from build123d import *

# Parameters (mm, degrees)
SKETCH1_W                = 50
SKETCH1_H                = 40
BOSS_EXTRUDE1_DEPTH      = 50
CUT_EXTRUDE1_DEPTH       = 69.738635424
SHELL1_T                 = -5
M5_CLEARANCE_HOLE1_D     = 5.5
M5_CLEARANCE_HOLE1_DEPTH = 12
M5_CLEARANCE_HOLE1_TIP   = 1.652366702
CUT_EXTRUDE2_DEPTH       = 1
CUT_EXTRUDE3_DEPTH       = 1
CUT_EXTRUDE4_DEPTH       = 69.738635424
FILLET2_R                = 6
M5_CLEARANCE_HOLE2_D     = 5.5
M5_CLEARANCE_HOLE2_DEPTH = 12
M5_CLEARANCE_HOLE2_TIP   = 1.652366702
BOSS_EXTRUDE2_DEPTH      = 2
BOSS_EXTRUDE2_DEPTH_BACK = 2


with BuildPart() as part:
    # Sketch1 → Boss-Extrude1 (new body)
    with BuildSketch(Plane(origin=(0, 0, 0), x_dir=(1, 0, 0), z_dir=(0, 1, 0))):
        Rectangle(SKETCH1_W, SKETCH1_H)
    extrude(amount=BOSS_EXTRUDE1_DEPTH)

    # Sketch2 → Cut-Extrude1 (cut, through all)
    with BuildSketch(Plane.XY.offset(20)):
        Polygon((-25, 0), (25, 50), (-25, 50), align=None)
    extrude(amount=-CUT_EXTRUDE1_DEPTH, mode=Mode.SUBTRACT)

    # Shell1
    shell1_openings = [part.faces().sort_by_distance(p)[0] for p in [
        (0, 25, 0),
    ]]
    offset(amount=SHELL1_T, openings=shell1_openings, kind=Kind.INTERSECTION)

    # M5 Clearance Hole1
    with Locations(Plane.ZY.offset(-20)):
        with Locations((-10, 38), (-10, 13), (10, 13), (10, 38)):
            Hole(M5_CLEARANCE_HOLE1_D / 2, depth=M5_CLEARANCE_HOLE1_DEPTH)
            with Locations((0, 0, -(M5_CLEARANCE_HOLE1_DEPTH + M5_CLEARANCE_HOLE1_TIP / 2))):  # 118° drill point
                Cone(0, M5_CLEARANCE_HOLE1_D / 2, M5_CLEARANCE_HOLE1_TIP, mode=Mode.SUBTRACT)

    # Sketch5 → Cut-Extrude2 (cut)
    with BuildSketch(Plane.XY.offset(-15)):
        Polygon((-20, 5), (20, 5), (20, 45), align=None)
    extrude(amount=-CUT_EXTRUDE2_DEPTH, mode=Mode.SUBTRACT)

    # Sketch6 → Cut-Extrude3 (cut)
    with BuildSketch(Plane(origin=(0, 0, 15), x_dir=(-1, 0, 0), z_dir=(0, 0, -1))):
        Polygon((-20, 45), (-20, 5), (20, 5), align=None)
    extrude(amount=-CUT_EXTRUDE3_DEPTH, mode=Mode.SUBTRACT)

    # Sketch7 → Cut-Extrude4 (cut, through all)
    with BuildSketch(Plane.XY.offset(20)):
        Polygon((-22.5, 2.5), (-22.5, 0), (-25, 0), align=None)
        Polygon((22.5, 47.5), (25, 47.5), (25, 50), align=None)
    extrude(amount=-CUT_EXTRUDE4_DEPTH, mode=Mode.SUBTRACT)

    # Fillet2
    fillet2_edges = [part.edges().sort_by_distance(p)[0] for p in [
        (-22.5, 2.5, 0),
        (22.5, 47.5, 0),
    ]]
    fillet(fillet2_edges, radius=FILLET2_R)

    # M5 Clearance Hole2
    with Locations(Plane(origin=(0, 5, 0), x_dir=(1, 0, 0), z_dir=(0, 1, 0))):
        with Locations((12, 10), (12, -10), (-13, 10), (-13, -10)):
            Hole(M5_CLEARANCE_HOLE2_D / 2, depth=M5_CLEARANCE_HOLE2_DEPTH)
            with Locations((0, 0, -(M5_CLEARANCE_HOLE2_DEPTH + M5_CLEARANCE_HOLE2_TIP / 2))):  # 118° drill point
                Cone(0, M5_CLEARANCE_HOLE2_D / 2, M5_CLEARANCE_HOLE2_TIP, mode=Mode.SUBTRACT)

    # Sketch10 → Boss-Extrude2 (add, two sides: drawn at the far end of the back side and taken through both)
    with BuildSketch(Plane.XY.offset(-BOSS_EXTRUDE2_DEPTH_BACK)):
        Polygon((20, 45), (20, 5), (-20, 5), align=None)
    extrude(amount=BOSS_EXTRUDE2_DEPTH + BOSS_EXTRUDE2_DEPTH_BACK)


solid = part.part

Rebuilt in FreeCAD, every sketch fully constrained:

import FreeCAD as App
import Part
import Sketcher
Q = App.Units.Quantity


def edges_at(feature, points):
    """Names of the edges that pass closest to the given points."""
    edges = feature.Shape.Edges
    near = lambda p: min(range(len(edges)), key=lambda i: edges[i].distToShape(Part.Vertex(*p))[0])
    return sorted({f"Edge{near(p) + 1}" for p in points})


def faces_at(feature, points):
    """Names of the faces that lie closest to the given points."""
    faces = feature.Shape.Faces
    near = lambda p: min(range(len(faces)), key=lambda i: faces[i].distToShape(Part.Vertex(*p))[0])
    return sorted({f"Face{near(p) + 1}" for p in points})


def add_polygon(sketch, points):
    """Adds a closed chain of lines whose ends are joined by coincident constraints."""
    first, n = sketch.GeometryCount, len(points)
    for a, b in zip(points, points[1:] + points[:1]):
        sketch.addGeometry(Part.LineSegment(App.Vector(*a, 0), App.Vector(*b, 0)), False)
    for i in range(n):
        sketch.addConstraint(Sketcher.Constraint("Coincident", first + i, 2, first + (i + 1) % n, 1))

doc = App.newDocument("Part")
params = doc.addObject("Spreadsheet::Sheet", "Params")
for row, (alias, value) in enumerate([
    ("sketch1_width", "50 mm"),
    ("sketch1_height", "40 mm"),
    ("pad1_length", "50 mm"),
    ("sketch2_width", "50 mm"),
    ("thickness_wall", "5 mm"),
    ("sketch3_diameter", "5.5 mm"),
    ("hole_diameter", "5.5 mm"),
    ("hole_depth", "12 mm"),
    ("sketch4_width", "40 mm"),
    ("pocket2_length", "1 mm"),
    ("sketch5_width", "40 mm"),
    ("pocket3_length", "1 mm"),
    ("sketch6_width", "2.5 mm"),
    ("fillet_radius", "6 mm"),
    ("sketch7_diameter", "5.5 mm"),
    ("hole2_diameter", "5.5 mm"),
    ("hole2_depth", "12 mm"),
    ("sketch8_width", "40 mm"),
    ("pad2_length", "2 mm"),
    ("pad2_length2", "2 mm"),
], start=1):
    params.set(f"A{row}", alias)
    params.set(f"B{row}", "=" + value)
    params.setAlias(f"B{row}", alias)

body = doc.addObject("PartDesign::Body", "Body")

# Sketch on XZ plane
sketch1 = doc.addObject("Sketcher::SketchObject", "Sketch")
body.addObject(sketch1)
sketch1.AttachmentSupport = (doc.XZ_Plane, [""])
sketch1.MapMode = "FlatFace"
add_polygon(sketch1, [(-25, -20), (-25, 20), (25, 20), (25, -20)])  # lines 0-3
sketch1.addConstraint([
    Sketcher.Constraint("Vertical", 0),
    Sketcher.Constraint("Horizontal", 1),
    Sketcher.Constraint("Vertical", 2),
    Sketcher.Constraint("Horizontal", 3),
    Sketcher.Constraint("Symmetric", 0, 2, 2, 2, -1, 1),
    Sketcher.Constraint("DistanceX", 1, 1, 1, 2, Q("50 mm")),
    Sketcher.Constraint("DistanceY", 0, 1, 0, 2, Q("40 mm")),
])
sketch1.setExpression("Constraints[9]", "Params.sketch1_width")
sketch1.setExpression("Constraints[10]", "Params.sketch1_height")
pad1 = doc.addObject("PartDesign::Pad", "Pad")
body.addObject(pad1)
pad1.Profile = sketch1
pad1.setExpression("Length", "Params.pad1_length")
pad1.Reversed = True

# Sketch on XY plane
sketch2 = doc.addObject("Sketcher::SketchObject", "Sketch001")
body.addObject(sketch2)
sketch2.AttachmentSupport = (doc.XY_Plane, [""])
sketch2.MapMode = "FlatFace"
sketch2.AttachmentOffset = App.Placement(App.Vector(0, 0, 20), App.Rotation())
add_polygon(sketch2, [(-25, 0), (25, 50), (-25, 50)])  # lines 0-2
sketch2.addConstraint([
    Sketcher.Constraint("Horizontal", 1),
    Sketcher.Constraint("Vertical", 2),
    Sketcher.Constraint("PointOnObject", 2, 2, -1),
    Sketcher.Constraint("Equal", 1, 2),
    Sketcher.Constraint("DistanceX", 1, 2, 1, 1, Q("50 mm")),
    Sketcher.Constraint("DistanceX", -1, 1, 0, 2, Q("25 mm")),
])
sketch2.setExpression("Constraints[7]", "Params.sketch2_width")
pocket1 = doc.addObject("PartDesign::Pocket", "Pocket")
body.addObject(pocket1)
pocket1.Profile = sketch2
pocket1.Type = "ThroughAll"
doc.recompute()

thickness = doc.addObject("PartDesign::Thickness", "Thickness")
body.addObject(thickness)
thickness.Base = (pocket1, faces_at(pocket1, [(0, 25, 0)]))
thickness.setExpression("Value", "Params.thickness_wall")
thickness.Reversed = True
thickness.Join = "Intersection"

# Sketch on YZ plane
sketch3 = doc.addObject("Sketcher::SketchObject", "Sketch002")
body.addObject(sketch3)
sketch3.AttachmentSupport = (doc.YZ_Plane, [""])
sketch3.MapMode = "FlatFace"
sketch3.AttachmentOffset = App.Placement(App.Vector(0, 0, 20), App.Rotation())
sketch3.addGeometry([
    Part.Circle(App.Vector(38, -10, 0), App.Vector(0, 0, 1), 2.75),
    Part.Circle(App.Vector(13, -10, 0), App.Vector(0, 0, 1), 2.75),
    Part.Circle(App.Vector(13, 10, 0), App.Vector(0, 0, 1), 2.75),
    Part.Circle(App.Vector(38, 10, 0), App.Vector(0, 0, 1), 2.75),
], False)
sketch3.addConstraint([
    Sketcher.Constraint("Equal", 0, 1),
    Sketcher.Constraint("Equal", 1, 2),
    Sketcher.Constraint("Equal", 2, 3),
    Sketcher.Constraint("Symmetric", 1, 3, 2, 3, -1),
    Sketcher.Constraint("Symmetric", 0, 3, 3, 3, -1),
    Sketcher.Constraint("Horizontal", 0, 3, 1, 3),
    Sketcher.Constraint("Diameter", 0, Q("5.5 mm")),
    Sketcher.Constraint("DistanceX", -1, 1, 0, 3, Q("38 mm")),
    Sketcher.Constraint("DistanceY", 0, 3, -1, 1, Q("10 mm")),
    Sketcher.Constraint("DistanceX", -1, 1, 1, 3, Q("13 mm")),
])
sketch3.setExpression("Constraints[6]", "Params.sketch3_diameter")
doc.recompute()
hole = doc.addObject("PartDesign::Hole", "Hole")
body.addObject(hole)
hole.Profile = sketch3
hole.ThreadType = "None"
hole.setExpression("Diameter", "Params.hole_diameter")
hole.DepthType = "Dimension"
hole.setExpression("Depth", "Params.hole_depth")
hole.DrillPoint = "Angled"
hole.DrillPointAngle = 118
hole.Reversed = True

# Sketch on XY plane
sketch4 = doc.addObject("Sketcher::SketchObject", "Sketch003")
body.addObject(sketch4)
sketch4.AttachmentSupport = (doc.XY_Plane, [""])
sketch4.MapMode = "FlatFace"
sketch4.AttachmentOffset = App.Placement(App.Vector(0, 0, -15), App.Rotation())
add_polygon(sketch4, [(-20, 5), (20, 5), (20, 45)])  # lines 0-2
sketch4.addConstraint([
    Sketcher.Constraint("Horizontal", 0),
    Sketcher.Constraint("Vertical", 1),
    Sketcher.Constraint("Equal", 0, 1),
    Sketcher.Constraint("DistanceX", 0, 1, 0, 2, Q("40 mm")),
    Sketcher.Constraint("DistanceX", -1, 1, 0, 2, Q("20 mm")),
    Sketcher.Constraint("DistanceY", -1, 1, 0, 2, Q("5 mm")),
])
sketch4.setExpression("Constraints[6]", "Params.sketch4_width")
pocket2 = doc.addObject("PartDesign::Pocket", "Pocket001")
body.addObject(pocket2)
pocket2.Profile = sketch4
pocket2.setExpression("Length", "Params.pocket2_length")

# Sketch on XY plane
sketch5 = doc.addObject("Sketcher::SketchObject", "Sketch004")
body.addObject(sketch5)
sketch5.AttachmentSupport = (doc.XY_Plane, [""])
sketch5.MapMode = "FlatFace"
sketch5.AttachmentOffset = App.Placement(App.Vector(0, 0, 15), App.Rotation())
add_polygon(sketch5, [(20, 45), (20, 5), (-20, 5)])  # lines 0-2
sketch5.addConstraint([
    Sketcher.Constraint("Vertical", 0),
    Sketcher.Constraint("Horizontal", 1),
    Sketcher.Constraint("Equal", 1, 0),
    Sketcher.Constraint("DistanceX", 1, 2, 1, 1, Q("40 mm")),
    Sketcher.Constraint("DistanceX", -1, 1, 0, 2, Q("20 mm")),
    Sketcher.Constraint("DistanceY", -1, 1, 0, 2, Q("5 mm")),
])
sketch5.setExpression("Constraints[6]", "Params.sketch5_width")
pocket3 = doc.addObject("PartDesign::Pocket", "Pocket002")
body.addObject(pocket3)
pocket3.Profile = sketch5
pocket3.setExpression("Length", "Params.pocket3_length")
pocket3.Reversed = True

# Sketch on XY plane
sketch6 = doc.addObject("Sketcher::SketchObject", "Sketch005")
body.addObject(sketch6)
sketch6.AttachmentSupport = (doc.XY_Plane, [""])
sketch6.MapMode = "FlatFace"
sketch6.AttachmentOffset = App.Placement(App.Vector(0, 0, 20), App.Rotation())
add_polygon(sketch6, [(-22.5, 0), (-22.5, 2.5), (-25, 0)])  # lines 0-2
add_polygon(sketch6, [(22.5, 47.5), (25, 47.5), (25, 50)])  # lines 3-5
sketch6.addConstraint([
    Sketcher.Constraint("Vertical", 0),
    Sketcher.Constraint("Horizontal", 2),
    Sketcher.Constraint("Horizontal", 3),
    Sketcher.Constraint("Vertical", 4),
    Sketcher.Constraint("PointOnObject", 1, 2, -1),
    Sketcher.Constraint("Parallel", 1, 5),
    Sketcher.Constraint("Equal", 2, 3),
    Sketcher.Constraint("Equal", 3, 0),
    Sketcher.Constraint("DistanceX", 2, 1, 2, 2, Q("2.5 mm")),
    Sketcher.Constraint("DistanceX", 1, 2, -1, 1, Q("25 mm")),
    Sketcher.Constraint("DistanceX", -1, 1, 3, 2, Q("25 mm")),
    Sketcher.Constraint("DistanceY", -1, 1, 4, 2, Q("50 mm")),
])
sketch6.setExpression("Constraints[14]", "Params.sketch6_width")
pocket4 = doc.addObject("PartDesign::Pocket", "Pocket003")
body.addObject(pocket4)
pocket4.Profile = sketch6
pocket4.Type = "ThroughAll"
doc.recompute()

fillet = doc.addObject("PartDesign::Fillet", "Fillet")
body.addObject(fillet)
fillet.Base = (pocket4, edges_at(pocket4, [(-22.5, 2.5, 0), (22.5, 47.5, 0)]))
fillet.setExpression("Radius", "Params.fillet_radius")

# Sketch on XZ plane
sketch7 = doc.addObject("Sketcher::SketchObject", "Sketch006")
body.addObject(sketch7)
sketch7.AttachmentSupport = (doc.XZ_Plane, [""])
sketch7.MapMode = "FlatFace"
sketch7.AttachmentOffset = App.Placement(App.Vector(0, 0, -5), App.Rotation())
sketch7.addGeometry([
    Part.Circle(App.Vector(12, -10, 0), App.Vector(0, 0, 1), 2.75),
    Part.Circle(App.Vector(12, 10, 0), App.Vector(0, 0, 1), 2.75),
    Part.Circle(App.Vector(-13, -10, 0), App.Vector(0, 0, 1), 2.75),
    Part.Circle(App.Vector(-13, 10, 0), App.Vector(0, 0, 1), 2.75),
], False)
sketch7.addConstraint([
    Sketcher.Constraint("Equal", 0, 1),
    Sketcher.Constraint("Equal", 1, 2),
    Sketcher.Constraint("Equal", 2, 3),
    Sketcher.Constraint("Symmetric", 0, 3, 1, 3, -1),
    Sketcher.Constraint("Symmetric", 2, 3, 3, 3, -1),
    Sketcher.Constraint("Horizontal", 0, 3, 2, 3),
    Sketcher.Constraint("Diameter", 0, Q("5.5 mm")),
    Sketcher.Constraint("DistanceX", -1, 1, 0, 3, Q("12 mm")),
    Sketcher.Constraint("DistanceY", 0, 3, -1, 1, Q("10 mm")),
    Sketcher.Constraint("DistanceX", 2, 3, -1, 1, Q("13 mm")),
])
sketch7.setExpression("Constraints[6]", "Params.sketch7_diameter")
doc.recompute()
hole2 = doc.addObject("PartDesign::Hole", "Hole001")
body.addObject(hole2)
hole2.Profile = sketch7
hole2.ThreadType = "None"
hole2.setExpression("Diameter", "Params.hole2_diameter")
hole2.DepthType = "Dimension"
hole2.setExpression("Depth", "Params.hole2_depth")
hole2.DrillPoint = "Angled"
hole2.DrillPointAngle = 118
hole2.Reversed = True

# Sketch on XY plane
sketch8 = doc.addObject("Sketcher::SketchObject", "Sketch007")
body.addObject(sketch8)
sketch8.AttachmentSupport = (doc.XY_Plane, [""])
sketch8.MapMode = "FlatFace"
add_polygon(sketch8, [(20, 5), (20, 45), (-20, 5)])  # lines 0-2
sketch8.addConstraint([
    Sketcher.Constraint("Vertical", 0),
    Sketcher.Constraint("Horizontal", 2),
    Sketcher.Constraint("Equal", 2, 0),
    Sketcher.Constraint("DistanceX", 2, 1, 2, 2, Q("40 mm")),
    Sketcher.Constraint("DistanceX", -1, 1, 0, 2, Q("20 mm")),
    Sketcher.Constraint("DistanceY", -1, 1, 0, 2, Q("45 mm")),
])
sketch8.setExpression("Constraints[6]", "Params.sketch8_width")
pad2 = doc.addObject("PartDesign::Pad", "Pad001")
body.addObject(pad2)
pad2.Profile = sketch8
pad2.Type = "TwoLengths"
pad2.setExpression("Length", "Params.pad2_length")
pad2.setExpression("Length2", "Params.pad2_length2")

doc.recompute()
